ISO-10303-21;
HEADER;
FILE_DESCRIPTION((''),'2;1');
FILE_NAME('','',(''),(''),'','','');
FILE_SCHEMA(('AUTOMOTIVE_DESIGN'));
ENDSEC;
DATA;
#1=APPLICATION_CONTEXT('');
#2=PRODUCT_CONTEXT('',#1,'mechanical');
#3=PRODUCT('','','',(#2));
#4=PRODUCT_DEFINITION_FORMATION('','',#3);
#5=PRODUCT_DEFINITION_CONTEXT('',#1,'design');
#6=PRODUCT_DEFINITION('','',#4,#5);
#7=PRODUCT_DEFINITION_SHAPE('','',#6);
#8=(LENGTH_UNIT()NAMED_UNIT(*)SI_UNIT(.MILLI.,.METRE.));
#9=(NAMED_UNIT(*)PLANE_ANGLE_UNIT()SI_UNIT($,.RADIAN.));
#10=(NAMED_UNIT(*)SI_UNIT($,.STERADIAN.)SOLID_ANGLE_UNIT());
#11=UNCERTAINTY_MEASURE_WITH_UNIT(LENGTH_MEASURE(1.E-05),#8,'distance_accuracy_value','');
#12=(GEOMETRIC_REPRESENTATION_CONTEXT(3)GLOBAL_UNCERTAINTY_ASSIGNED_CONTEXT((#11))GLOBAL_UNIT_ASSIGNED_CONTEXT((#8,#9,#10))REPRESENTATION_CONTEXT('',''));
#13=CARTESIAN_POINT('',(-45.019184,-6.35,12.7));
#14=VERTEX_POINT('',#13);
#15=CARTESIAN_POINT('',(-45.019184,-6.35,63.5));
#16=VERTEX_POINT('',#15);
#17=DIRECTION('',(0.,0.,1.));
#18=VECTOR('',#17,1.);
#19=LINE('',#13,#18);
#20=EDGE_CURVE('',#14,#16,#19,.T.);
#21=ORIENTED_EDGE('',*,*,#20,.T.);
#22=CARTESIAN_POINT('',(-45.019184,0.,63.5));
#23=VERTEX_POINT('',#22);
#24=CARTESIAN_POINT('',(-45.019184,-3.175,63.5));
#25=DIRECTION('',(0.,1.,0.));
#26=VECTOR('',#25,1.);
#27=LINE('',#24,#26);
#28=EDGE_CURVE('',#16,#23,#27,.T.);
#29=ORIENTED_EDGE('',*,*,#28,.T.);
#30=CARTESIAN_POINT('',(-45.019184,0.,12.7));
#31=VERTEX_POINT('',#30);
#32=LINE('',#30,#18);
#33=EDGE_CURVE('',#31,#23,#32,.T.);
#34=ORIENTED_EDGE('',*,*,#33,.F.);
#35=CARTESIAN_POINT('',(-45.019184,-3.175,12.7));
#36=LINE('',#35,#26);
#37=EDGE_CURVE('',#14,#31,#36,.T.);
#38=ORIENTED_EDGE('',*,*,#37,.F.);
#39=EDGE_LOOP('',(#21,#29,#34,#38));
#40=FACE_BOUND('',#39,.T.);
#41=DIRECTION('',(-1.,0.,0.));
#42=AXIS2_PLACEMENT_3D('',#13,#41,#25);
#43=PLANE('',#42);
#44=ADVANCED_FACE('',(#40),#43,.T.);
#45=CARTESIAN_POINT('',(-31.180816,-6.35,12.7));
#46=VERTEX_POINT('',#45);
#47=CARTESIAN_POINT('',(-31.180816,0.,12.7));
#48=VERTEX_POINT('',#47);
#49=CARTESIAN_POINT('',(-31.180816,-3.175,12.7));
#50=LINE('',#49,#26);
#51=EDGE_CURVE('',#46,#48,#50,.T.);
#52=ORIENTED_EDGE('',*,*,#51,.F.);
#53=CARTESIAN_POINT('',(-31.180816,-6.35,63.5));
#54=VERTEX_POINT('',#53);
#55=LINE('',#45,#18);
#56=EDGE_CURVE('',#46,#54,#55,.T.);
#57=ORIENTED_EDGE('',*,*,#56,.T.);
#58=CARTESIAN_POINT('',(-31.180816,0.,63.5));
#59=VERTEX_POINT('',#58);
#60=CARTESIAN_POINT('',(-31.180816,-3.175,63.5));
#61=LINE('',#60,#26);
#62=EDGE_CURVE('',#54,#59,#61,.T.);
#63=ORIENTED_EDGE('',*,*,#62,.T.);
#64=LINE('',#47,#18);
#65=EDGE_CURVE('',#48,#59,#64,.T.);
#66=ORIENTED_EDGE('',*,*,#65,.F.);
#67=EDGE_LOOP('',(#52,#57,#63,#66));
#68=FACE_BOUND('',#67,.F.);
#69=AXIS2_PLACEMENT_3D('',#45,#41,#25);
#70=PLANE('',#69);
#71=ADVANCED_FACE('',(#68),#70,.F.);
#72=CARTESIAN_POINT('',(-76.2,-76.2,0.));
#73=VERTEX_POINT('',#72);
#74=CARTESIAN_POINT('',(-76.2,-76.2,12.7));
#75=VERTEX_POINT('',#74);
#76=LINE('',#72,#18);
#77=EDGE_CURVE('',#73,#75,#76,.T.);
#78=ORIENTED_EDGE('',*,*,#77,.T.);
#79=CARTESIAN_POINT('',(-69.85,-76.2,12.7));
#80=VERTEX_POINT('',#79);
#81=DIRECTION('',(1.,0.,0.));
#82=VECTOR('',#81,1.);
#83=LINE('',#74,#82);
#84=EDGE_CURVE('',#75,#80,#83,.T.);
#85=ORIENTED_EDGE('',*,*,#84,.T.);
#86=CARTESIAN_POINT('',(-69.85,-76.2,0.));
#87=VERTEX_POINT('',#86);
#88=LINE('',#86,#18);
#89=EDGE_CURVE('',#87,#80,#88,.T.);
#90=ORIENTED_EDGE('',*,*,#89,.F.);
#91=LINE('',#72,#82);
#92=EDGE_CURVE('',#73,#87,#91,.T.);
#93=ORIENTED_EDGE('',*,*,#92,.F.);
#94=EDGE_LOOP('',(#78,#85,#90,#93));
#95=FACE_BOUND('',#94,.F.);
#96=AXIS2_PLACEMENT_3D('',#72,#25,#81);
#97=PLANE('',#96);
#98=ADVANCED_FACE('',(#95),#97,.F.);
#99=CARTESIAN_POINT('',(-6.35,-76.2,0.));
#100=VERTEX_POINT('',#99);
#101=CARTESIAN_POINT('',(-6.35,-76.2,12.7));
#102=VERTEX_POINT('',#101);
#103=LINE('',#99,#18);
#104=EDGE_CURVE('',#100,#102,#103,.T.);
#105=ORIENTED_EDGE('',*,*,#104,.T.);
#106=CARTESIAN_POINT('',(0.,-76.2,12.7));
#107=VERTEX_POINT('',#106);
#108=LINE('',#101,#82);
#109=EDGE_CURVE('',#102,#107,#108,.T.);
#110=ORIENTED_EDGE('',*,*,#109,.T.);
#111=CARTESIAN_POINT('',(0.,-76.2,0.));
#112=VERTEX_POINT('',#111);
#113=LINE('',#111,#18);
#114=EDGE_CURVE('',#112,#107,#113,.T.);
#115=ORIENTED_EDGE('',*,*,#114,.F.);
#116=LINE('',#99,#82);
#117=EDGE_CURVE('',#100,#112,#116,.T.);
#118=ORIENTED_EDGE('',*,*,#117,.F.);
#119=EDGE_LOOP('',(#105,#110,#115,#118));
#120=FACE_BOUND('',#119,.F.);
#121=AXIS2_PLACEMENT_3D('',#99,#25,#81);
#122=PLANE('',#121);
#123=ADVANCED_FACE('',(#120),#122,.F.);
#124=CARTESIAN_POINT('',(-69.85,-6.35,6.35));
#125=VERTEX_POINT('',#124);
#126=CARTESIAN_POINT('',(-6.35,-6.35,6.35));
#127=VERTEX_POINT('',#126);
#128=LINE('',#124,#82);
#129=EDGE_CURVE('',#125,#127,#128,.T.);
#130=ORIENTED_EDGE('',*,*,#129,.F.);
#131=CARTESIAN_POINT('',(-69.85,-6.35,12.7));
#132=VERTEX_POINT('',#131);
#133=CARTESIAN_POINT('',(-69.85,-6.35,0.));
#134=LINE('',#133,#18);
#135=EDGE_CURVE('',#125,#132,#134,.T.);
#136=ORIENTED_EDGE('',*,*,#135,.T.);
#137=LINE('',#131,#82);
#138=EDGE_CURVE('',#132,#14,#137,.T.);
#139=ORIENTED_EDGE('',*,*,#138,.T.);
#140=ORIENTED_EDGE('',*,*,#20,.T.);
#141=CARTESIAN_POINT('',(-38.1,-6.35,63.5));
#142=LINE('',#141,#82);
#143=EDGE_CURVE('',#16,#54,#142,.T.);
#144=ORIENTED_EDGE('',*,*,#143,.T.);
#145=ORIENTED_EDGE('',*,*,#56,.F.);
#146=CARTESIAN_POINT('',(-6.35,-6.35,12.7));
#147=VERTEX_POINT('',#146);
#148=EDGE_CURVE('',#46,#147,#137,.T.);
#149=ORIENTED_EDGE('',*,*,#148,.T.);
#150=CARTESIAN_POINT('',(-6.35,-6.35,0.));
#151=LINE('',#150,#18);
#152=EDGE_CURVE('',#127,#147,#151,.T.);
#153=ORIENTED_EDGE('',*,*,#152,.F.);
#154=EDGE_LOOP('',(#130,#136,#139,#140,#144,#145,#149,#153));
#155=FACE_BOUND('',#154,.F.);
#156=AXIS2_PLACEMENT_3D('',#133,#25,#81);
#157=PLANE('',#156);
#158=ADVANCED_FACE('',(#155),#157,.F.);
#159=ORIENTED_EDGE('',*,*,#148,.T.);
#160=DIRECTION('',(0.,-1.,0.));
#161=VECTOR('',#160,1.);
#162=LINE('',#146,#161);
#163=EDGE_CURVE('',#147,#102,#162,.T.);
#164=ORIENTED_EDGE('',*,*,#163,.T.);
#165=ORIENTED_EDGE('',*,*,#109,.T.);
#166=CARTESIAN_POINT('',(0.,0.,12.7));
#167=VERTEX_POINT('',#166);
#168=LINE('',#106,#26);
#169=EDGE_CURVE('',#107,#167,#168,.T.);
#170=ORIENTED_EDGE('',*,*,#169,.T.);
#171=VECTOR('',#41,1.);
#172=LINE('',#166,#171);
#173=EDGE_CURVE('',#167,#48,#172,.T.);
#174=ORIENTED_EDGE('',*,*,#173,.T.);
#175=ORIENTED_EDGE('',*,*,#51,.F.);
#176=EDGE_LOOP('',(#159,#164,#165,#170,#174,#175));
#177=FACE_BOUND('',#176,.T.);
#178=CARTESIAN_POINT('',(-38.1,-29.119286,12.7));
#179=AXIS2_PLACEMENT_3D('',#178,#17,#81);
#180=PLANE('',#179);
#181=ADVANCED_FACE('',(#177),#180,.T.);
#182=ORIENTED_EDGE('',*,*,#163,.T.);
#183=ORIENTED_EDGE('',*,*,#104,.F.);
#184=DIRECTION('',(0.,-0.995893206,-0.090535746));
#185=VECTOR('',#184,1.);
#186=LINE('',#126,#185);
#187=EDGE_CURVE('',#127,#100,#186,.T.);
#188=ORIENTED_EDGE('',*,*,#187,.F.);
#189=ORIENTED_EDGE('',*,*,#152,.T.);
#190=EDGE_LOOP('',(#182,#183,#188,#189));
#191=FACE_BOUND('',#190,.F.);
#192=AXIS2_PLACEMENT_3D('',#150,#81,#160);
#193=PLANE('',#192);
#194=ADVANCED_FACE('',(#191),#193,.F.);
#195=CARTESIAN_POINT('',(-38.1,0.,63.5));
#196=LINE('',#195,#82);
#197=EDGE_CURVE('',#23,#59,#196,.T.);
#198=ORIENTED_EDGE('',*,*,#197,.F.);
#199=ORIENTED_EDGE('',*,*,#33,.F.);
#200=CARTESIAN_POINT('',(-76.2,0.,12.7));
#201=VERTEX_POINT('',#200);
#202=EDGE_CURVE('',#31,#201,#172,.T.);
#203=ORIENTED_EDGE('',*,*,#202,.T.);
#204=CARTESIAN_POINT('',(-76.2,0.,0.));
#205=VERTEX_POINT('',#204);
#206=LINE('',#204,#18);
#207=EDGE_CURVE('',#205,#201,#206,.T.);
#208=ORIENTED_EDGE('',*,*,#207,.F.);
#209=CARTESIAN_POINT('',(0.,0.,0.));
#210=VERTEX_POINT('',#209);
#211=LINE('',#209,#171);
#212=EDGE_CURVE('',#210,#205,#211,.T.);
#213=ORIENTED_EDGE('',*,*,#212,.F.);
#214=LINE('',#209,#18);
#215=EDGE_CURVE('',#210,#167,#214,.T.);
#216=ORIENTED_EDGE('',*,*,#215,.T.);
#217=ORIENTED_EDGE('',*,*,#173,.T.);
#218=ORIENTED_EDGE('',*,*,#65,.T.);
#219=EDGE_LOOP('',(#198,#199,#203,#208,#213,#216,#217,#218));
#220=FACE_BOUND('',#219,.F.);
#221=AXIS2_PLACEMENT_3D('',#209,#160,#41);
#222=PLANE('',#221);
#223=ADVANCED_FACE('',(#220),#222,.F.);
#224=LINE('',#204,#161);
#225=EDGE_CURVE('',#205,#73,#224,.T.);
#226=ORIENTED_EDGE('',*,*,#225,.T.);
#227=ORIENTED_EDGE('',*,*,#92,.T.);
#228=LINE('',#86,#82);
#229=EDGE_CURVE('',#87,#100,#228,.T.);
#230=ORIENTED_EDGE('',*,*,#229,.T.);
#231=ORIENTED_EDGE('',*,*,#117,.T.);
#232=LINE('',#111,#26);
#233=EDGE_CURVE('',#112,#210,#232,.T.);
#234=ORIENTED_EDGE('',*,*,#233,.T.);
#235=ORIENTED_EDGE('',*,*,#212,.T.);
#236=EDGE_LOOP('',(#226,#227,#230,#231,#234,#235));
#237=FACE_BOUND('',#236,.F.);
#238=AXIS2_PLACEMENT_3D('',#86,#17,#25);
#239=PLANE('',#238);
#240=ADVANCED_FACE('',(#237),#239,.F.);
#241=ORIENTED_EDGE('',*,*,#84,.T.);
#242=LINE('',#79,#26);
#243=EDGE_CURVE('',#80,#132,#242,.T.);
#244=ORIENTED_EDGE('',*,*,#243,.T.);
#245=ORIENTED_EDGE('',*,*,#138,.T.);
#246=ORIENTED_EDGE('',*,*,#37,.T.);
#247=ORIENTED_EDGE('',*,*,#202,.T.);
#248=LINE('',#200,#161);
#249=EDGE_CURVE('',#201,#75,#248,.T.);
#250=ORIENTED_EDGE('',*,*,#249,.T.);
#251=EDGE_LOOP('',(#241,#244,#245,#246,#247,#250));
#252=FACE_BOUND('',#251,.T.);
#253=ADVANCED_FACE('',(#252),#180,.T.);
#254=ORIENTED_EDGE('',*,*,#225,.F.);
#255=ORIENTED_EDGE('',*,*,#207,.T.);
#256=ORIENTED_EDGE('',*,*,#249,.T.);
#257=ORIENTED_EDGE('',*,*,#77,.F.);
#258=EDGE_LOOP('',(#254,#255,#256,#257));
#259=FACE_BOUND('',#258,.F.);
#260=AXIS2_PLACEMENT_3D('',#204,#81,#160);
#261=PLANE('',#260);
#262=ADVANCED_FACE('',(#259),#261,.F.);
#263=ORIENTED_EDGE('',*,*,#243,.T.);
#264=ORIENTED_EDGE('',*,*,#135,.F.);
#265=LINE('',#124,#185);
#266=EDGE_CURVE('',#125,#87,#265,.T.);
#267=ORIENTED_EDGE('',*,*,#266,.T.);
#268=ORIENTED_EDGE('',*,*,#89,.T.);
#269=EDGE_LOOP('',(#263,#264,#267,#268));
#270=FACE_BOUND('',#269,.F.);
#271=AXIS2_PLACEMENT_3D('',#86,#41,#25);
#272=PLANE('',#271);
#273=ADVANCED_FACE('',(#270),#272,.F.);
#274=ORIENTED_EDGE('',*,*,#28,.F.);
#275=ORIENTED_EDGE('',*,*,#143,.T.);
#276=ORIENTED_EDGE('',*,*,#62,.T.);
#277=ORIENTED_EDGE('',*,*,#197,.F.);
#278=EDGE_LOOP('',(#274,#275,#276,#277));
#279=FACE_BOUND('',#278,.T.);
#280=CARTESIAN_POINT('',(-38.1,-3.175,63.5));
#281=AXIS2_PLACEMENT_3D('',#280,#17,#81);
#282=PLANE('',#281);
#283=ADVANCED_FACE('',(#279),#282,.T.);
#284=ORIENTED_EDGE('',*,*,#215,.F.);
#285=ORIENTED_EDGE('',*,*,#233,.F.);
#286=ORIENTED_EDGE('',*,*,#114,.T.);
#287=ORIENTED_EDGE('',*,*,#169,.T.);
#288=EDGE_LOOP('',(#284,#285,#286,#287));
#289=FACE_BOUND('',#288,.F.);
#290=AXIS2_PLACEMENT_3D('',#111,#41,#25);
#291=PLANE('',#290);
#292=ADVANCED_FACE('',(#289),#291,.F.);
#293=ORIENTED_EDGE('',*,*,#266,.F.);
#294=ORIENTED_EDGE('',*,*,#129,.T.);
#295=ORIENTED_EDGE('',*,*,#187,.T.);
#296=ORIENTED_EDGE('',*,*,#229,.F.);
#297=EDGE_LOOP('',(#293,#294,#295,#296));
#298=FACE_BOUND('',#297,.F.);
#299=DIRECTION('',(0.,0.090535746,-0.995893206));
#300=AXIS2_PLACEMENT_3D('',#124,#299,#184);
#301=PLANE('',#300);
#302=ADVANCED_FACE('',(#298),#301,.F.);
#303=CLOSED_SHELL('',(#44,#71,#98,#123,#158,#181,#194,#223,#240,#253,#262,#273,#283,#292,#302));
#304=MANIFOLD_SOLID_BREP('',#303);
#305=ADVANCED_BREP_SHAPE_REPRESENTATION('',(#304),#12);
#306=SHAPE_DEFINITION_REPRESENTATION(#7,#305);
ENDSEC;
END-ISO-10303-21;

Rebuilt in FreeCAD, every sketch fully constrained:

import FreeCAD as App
import Part
import Sketcher

V = App.Vector
Q = App.Units.Quantity

doc = App.newDocument("Part")
body = doc.addObject("PartDesign::Body", "Body")

sketch1 = body.newObject("Sketcher::SketchObject", "Sketch")
sketch1.AttachmentSupport = (doc.getObject("XY_Plane"), [""])
sketch1.MapMode = "FlatFace"
sketch1.addGeometry([
    Part.LineSegment(V(0, -76, 0), V(0, 0, 0)),
    Part.LineSegment(V(0, 0, 0), V(-76, 0, 0)),
    Part.LineSegment(V(-76, 0, 0), V(-76, -76, 0)),
    Part.LineSegment(V(-76, -76, 0), V(-70, -76, 0)),
    Part.LineSegment(V(-70, -76, 0), V(-70, -6, 0)),
    Part.LineSegment(V(-70, -6, 0), V(-6, -6, 0)),
    Part.LineSegment(V(-6, -6, 0), V(-6, -76, 0)),
    Part.LineSegment(V(-6, -76, 0), V(0, -76, 0)),
], False)
sketch1.addConstraint([
    Sketcher.Constraint("Coincident", 0, 2, 1, 1),
    Sketcher.Constraint("Coincident", 1, 2, 2, 1),
    Sketcher.Constraint("Coincident", 2, 2, 3, 1),
    Sketcher.Constraint("Coincident", 3, 2, 4, 1),
    Sketcher.Constraint("Coincident", 4, 2, 5, 1),
    Sketcher.Constraint("Coincident", 5, 2, 6, 1),
    Sketcher.Constraint("Coincident", 6, 2, 7, 1),
    Sketcher.Constraint("Coincident", 7, 2, 0, 1),
    Sketcher.Constraint("Vertical", 0),
    Sketcher.Constraint("Horizontal", 1),
    Sketcher.Constraint("Vertical", 2),
    Sketcher.Constraint("Horizontal", 3),
    Sketcher.Constraint("Vertical", 4),
    Sketcher.Constraint("Horizontal", 5),
    Sketcher.Constraint("Vertical", 6),
    Sketcher.Constraint("Horizontal", 7),
    Sketcher.Constraint("Coincident", 0, 2, -1, 1),
    Sketcher.Constraint("Horizontal", 3, 2, 6, 2),
    Sketcher.Constraint("Equal", 3, 7),
    Sketcher.Constraint("Equal", 1, 0),
    Sketcher.Constraint("DistanceX", 1, 2, 1, 1, Q("3 in")),
    Sketcher.Constraint("DistanceX", 5, 1, 5, 2, Q("2.5 in")),
    Sketcher.Constraint("DistanceY", 4, 1, 4, 2, Q("2.75 in")),
])
pad1 = body.newObject("PartDesign::Pad", "Pad")
pad1.Profile = sketch1
pad1.Length = Q("0.5 in")

sketch2 = body.newObject("Sketcher::SketchObject", "Sketch001")
sketch2.AttachmentSupport = (doc.getObject("YZ_Plane"), [""])
sketch2.MapMode = "FlatFace"
sketch2.AttachmentOffset = App.Placement(V(0, 0, -2.75 * 25.4), App.Rotation())
sketch2.addGeometry([
    Part.LineSegment(V(-76, 0, 0), V(-6, 0, 0)),
    Part.LineSegment(V(-6, 0, 0), V(-6, 6, 0)),
    Part.LineSegment(V(-6, 6, 0), V(-76, 0, 0)),
], False)
sketch2.addConstraint([
    Sketcher.Constraint("Coincident", 0, 2, 1, 1),
    Sketcher.Constraint("Coincident", 1, 2, 2, 1),
    Sketcher.Constraint("Coincident", 2, 2, 0, 1),
    Sketcher.Constraint("Horizontal", 0),
    Sketcher.Constraint("Vertical", 1),
    Sketcher.Constraint("PointOnObject", 0, 2, -1),
    Sketcher.Constraint("DistanceX", 2, 2, -1, 1, Q("3 in")),
    Sketcher.Constraint("DistanceX", 0, 1, 0, 2, Q("2.75 in")),
    Sketcher.Constraint("DistanceY", 1, 1, 1, 2, Q("0.25 in")),
])
pad2 = body.newObject("PartDesign::Pad", "Pad001")
pad2.Profile = sketch2
pad2.Length = Q("2.5 in")

sketch3 = body.newObject("Sketcher::SketchObject", "Sketch002")
sketch3.AttachmentSupport = (doc.getObject("XY_Plane"), [""])
sketch3.MapMode = "FlatFace"
sketch3.AttachmentOffset = App.Placement(V(0, 0, 0.5 * 25.4), App.Rotation())
sketch3.addGeometry([
    Part.LineSegment(V(-45, 0, 0), V(-45, -6, 0)),
    Part.LineSegment(V(-45, -6, 0), V(-31, -6, 0)),
    Part.LineSegment(V(-31, -6, 0), V(-31, 0, 0)),
    Part.LineSegment(V(-31, 0, 0), V(-45, 0, 0)),
], False)
sketch3.addConstraint([
    Sketcher.Constraint("Coincident", 0, 2, 1, 1),
    Sketcher.Constraint("Coincident", 1, 2, 2, 1),
    Sketcher.Constraint("Coincident", 2, 2, 3, 1),
    Sketcher.Constraint("Coincident", 3, 2, 0, 1),
    Sketcher.Constraint("Vertical", 0),
    Sketcher.Constraint("Horizontal", 1),
    Sketcher.Constraint("Vertical", 2),
    Sketcher.Constraint("Horizontal", 3),
    Sketcher.Constraint("PointOnObject", 2, 2, -1),
    Sketcher.Constraint("DistanceY", 0, 2, 0, 1, Q("0.25 in")),
    Sketcher.Constraint("DistanceX", 1, 1, 1, 2, Q("13.838368 mm")),
    Sketcher.Constraint("DistanceX", 0, 2, -1, 1, Q("45.019184 mm")),
])
pad3 = body.newObject("PartDesign::Pad", "Pad002")
pad3.Profile = sketch3
pad3.Length = Q("2 in")

doc.recompute()
